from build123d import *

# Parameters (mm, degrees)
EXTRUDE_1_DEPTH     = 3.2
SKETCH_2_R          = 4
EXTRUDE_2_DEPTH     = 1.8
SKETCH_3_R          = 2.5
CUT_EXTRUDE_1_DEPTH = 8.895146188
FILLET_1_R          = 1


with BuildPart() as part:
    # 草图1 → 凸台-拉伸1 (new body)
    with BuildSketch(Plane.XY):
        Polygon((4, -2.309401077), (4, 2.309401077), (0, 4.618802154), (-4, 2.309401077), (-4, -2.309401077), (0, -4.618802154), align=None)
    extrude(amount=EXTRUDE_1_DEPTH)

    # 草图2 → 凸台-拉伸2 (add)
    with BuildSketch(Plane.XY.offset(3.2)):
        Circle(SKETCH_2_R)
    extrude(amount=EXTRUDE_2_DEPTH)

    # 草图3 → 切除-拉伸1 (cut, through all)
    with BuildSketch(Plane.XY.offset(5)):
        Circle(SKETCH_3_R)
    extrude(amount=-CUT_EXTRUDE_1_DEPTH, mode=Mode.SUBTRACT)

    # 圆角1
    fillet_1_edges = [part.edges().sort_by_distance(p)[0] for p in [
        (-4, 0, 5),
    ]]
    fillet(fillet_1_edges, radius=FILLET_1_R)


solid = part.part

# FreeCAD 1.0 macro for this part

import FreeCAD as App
import Part
import Sketcher
Q = App.Units.Quantity


def edges_at(feature, points):
    """Names of the edges that pass closest to the given points."""
    edges = feature.Shape.Edges
    near = lambda p: min(range(len(edges)), key=lambda i: edges[i].distToShape(Part.Vertex(*p))[0])
    return sorted({f"Edge{near(p) + 1}" for p in points})

doc = App.newDocument("Part")
body = doc.addObject("PartDesign::Body", "Body")

# Sketch on XY plane
sketch1 = doc.addObject("Sketcher::SketchObject", "Sketch")
body.addObject(sketch1)
sketch1.AttachmentSupport = (doc.XY_Plane, [""])
sketch1.MapMode = "FlatFace"
sketch1.addGeometry([
    Part.LineSegment(App.Vector(4, -2.3, 0), App.Vector(4, 2.3, 0)),  # 0
    Part.LineSegment(App.Vector(4, 2.3, 0), App.Vector(0, 4.6, 0)),  # 1
    Part.LineSegment(App.Vector(0, 4.6, 0), App.Vector(-4, 2.3, 0)),  # 2
    Part.LineSegment(App.Vector(-4, 2.3, 0), App.Vector(-4, -2.3, 0)),  # 3
    Part.LineSegment(App.Vector(-4, -2.3, 0), App.Vector(0, -4.6, 0)),  # 4
    Part.LineSegment(App.Vector(0, -4.6, 0), App.Vector(4, -2.3, 0)),  # 5
], False)
sketch1.addConstraint([
    Sketcher.Constraint("Coincident", 0, 2, 1, 1),
    Sketcher.Constraint("Coincident", 1, 2, 2, 1),
    Sketcher.Constraint("Coincident", 2, 2, 3, 1),
    Sketcher.Constraint("Coincident", 3, 2, 4, 1),
    Sketcher.Constraint("Coincident", 4, 2, 5, 1),
    Sketcher.Constraint("Coincident", 5, 2, 0, 1),
    Sketcher.Constraint("Vertical", 0),
    Sketcher.Constraint("Vertical", 3),
    Sketcher.Constraint("Symmetric", 0, 2, 3, 2, -1, 1),
    Sketcher.Constraint("Symmetric", 1, 2, 4, 2, -1, 1),
    Sketcher.Constraint("PointOnObject", 1, 2, -2),
    Sketcher.Constraint("Parallel", 2, 5),
    Sketcher.Constraint("Horizontal", 0, 2, 2, 2),
    Sketcher.Constraint("Angle", 1, Q("150 deg")),
    Sketcher.Constraint("DistanceX", -1, 1, 0, 2, 4.0),
    Sketcher.Constraint("DistanceY", -1, 1, 0, 2, 2.309401),
])
pad1 = doc.addObject("PartDesign::Pad", "Pad")
body.addObject(pad1)
pad1.Profile = sketch1
pad1.Length = 3.2

# Sketch on XY plane
sketch2 = doc.addObject("Sketcher::SketchObject", "Sketch001")
body.addObject(sketch2)
sketch2.AttachmentSupport = (doc.XY_Plane, [""])
sketch2.MapMode = "FlatFace"
sketch2.AttachmentOffset = App.Placement(App.Vector(0, 0, 3.2), App.Rotation())
sketch2.addGeometry(Part.Circle(App.Vector(0, 0, 0), App.Vector(0, 0, 1), 4), False)
sketch2.addConstraint([
    Sketcher.Constraint("Coincident", 0, 3, -1, 1),
    Sketcher.Constraint("Diameter", 0, 8.0),
])
pad2 = doc.addObject("PartDesign::Pad", "Pad001")
body.addObject(pad2)
pad2.Profile = sketch2
pad2.Length = 1.8

# Sketch on XY plane
sketch3 = doc.addObject("Sketcher::SketchObject", "Sketch002")
body.addObject(sketch3)
sketch3.AttachmentSupport = (doc.XY_Plane, [""])
sketch3.MapMode = "FlatFace"
sketch3.AttachmentOffset = App.Placement(App.Vector(0, 0, 5), App.Rotation())
sketch3.addGeometry(Part.Circle(App.Vector(0, 0, 0), App.Vector(0, 0, 1), 2.5), False)
sketch3.addConstraint([
    Sketcher.Constraint("Coincident", 0, 3, -1, 1),
    Sketcher.Constraint("Diameter", 0, 5.0),
])
pocket1 = doc.addObject("PartDesign::Pocket", "Pocket")
body.addObject(pocket1)
pocket1.Profile = sketch3
pocket1.Type = "ThroughAll"
doc.recompute()

fillet = doc.addObject("PartDesign::Fillet", "Fillet")
body.addObject(fillet)
fillet.Base = (pocket1, edges_at(pocket1, [(-4, 0, 5)]))
fillet.Radius = 1

doc.recompute()
